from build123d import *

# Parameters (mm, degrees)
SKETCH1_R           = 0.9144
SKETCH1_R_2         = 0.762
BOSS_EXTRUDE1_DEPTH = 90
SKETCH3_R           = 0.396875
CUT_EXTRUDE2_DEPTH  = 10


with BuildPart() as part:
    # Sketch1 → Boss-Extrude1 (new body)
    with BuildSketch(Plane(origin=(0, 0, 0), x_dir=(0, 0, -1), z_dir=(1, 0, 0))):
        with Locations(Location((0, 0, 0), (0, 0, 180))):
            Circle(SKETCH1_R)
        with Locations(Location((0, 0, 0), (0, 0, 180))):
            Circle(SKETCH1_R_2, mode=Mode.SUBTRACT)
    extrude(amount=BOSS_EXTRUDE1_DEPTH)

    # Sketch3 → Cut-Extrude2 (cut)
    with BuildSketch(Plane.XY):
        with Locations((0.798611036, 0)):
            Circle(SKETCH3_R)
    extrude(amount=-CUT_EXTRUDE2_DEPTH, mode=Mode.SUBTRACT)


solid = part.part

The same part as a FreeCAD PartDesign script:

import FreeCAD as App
import Part
import Sketcher
from FreeCAD import Vector
Q = App.Units.Quantity

doc = App.newDocument("Part")
body = doc.addObject("PartDesign::Body", "Body")

# Sketch on YZ plane
sketch1 = body.newObject("Sketcher::SketchObject", "Sketch")
sketch1.AttachmentSupport = (doc.getObject("YZ_Plane"), [""])
sketch1.MapMode = "FlatFace"
sketch1.addGeometry([
    Part.Circle(Vector(0, 0, 0), Vector(0, 0, 1), 0.9),
    Part.Circle(Vector(0, 0, 0), Vector(0, 0, 1), 0.8),
], False)
sketch1.addConstraint([
    Sketcher.Constraint("Coincident", 0, 3, -1, 1),
    Sketcher.Constraint("Coincident", 1, 3, -1, 1),
    Sketcher.Constraint("Diameter", 1, Q("0.06 in")),
    Sketcher.Constraint("Diameter", 0, Q("0.072 in")),
])
pad1 = body.newObject("PartDesign::Pad", "Pad")
pad1.Profile = sketch1
pad1.Length = 90

# Sketch on XY plane
sketch2 = body.newObject("Sketcher::SketchObject", "Sketch001")
sketch2.AttachmentSupport = (doc.getObject("XY_Plane"), [""])
sketch2.MapMode = "FlatFace"
sketch2.addGeometry(Part.Circle(Vector(0.8, 0, 0), Vector(0, 0, 1), 0.4), False)
sketch2.addConstraint([
    Sketcher.Constraint("PointOnObject", 0, 3, -1),
    Sketcher.Constraint("Diameter", 0, Q("0.03125 in")),
    Sketcher.Constraint("DistanceX", -1, 1, 0, 3, 0.798611),
])
pocket1 = body.newObject("PartDesign::Pocket", "Pocket")
pocket1.Profile = sketch2
pocket1.Length = 10

doc.recompute()
